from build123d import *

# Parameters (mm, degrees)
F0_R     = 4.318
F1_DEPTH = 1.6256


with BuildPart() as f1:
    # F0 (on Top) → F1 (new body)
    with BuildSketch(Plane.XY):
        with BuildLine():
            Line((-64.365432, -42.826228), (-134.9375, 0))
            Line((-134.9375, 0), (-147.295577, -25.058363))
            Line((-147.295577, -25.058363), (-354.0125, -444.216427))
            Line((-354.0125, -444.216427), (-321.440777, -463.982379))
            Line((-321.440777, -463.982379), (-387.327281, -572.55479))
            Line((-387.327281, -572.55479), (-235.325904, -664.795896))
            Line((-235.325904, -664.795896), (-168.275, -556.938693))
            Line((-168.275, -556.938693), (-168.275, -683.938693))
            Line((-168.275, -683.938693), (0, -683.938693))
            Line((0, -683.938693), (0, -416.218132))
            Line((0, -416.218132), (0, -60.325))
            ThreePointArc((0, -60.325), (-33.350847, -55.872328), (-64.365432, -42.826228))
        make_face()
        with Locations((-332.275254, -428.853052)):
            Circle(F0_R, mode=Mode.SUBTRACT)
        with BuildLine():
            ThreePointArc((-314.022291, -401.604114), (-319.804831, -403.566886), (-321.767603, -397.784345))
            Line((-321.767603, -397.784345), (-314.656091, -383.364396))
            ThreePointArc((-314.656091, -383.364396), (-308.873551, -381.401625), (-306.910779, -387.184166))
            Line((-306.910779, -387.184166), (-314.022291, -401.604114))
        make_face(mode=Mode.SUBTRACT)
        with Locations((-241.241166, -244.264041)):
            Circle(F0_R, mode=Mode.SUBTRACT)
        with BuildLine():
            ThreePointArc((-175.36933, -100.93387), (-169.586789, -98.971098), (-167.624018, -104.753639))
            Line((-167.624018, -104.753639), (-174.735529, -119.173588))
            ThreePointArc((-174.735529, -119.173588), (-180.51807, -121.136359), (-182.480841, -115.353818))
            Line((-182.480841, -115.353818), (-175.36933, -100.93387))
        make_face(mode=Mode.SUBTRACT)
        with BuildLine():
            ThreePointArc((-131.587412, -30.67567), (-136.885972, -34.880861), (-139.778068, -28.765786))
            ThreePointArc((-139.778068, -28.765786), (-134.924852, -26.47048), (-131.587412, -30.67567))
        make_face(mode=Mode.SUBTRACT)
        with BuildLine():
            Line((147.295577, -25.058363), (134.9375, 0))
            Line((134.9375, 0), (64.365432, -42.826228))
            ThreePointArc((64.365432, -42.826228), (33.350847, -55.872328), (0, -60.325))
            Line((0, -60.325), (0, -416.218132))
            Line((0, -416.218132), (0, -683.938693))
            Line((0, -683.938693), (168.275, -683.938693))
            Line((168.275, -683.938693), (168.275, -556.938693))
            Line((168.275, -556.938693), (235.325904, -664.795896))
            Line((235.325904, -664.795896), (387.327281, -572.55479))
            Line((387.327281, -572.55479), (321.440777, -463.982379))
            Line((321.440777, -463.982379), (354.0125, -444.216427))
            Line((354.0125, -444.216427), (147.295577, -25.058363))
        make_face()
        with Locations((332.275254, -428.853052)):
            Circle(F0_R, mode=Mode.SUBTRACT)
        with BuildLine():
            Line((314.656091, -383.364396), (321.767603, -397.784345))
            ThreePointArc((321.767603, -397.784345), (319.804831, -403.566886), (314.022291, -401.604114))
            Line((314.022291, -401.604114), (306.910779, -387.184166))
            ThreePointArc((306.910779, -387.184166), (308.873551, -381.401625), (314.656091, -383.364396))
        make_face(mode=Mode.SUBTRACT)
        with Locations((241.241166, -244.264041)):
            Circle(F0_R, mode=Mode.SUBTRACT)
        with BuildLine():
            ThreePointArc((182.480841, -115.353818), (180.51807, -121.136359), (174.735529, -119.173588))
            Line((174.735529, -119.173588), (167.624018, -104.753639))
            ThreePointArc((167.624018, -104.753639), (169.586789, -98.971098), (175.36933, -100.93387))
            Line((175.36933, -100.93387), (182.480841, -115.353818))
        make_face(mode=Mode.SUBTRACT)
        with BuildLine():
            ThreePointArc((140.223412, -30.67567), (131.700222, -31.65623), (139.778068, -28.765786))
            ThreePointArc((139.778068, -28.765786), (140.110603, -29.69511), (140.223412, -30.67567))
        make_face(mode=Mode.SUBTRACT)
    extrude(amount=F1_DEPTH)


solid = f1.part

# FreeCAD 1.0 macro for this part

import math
import FreeCAD as App
import Part
import Sketcher
Q = App.Units.Quantity

doc = App.newDocument("Part")
body = doc.addObject("PartDesign::Body", "Body")

# Sketch on XY plane
sketch1 = body.newObject("Sketcher::SketchObject", "Sketch")
sketch1.AttachmentSupport = (doc.getObject("XY_Plane"), [""])
sketch1.MapMode = "FlatFace"
sketch1.addGeometry([
    Part.LineSegment(App.Vector(-64.365432, -42.826228, 0), App.Vector(-134.9375, 0, 0)),  # 0
    Part.LineSegment(App.Vector(-134.9375, 0, 0), App.Vector(-147.295577, -25.058363, 0)),  # 1
    Part.LineSegment(App.Vector(-147.295577, -25.058363, 0), App.Vector(-354.0125, -444.216427, 0)),  # 2
    Part.LineSegment(App.Vector(-354.0125, -444.216427, 0), App.Vector(-321.440777, -463.982379, 0)),  # 3
    Part.LineSegment(App.Vector(-321.440777, -463.982379, 0), App.Vector(-387.327281, -572.55479, 0)),  # 4
    Part.LineSegment(App.Vector(-387.327281, -572.55479, 0), App.Vector(-235.325904, -664.795896, 0)),  # 5
    Part.LineSegment(App.Vector(-235.325904, -664.795896, 0), App.Vector(-168.275, -556.938693, 0)),  # 6
    Part.LineSegment(App.Vector(-168.275, -556.938693, 0), App.Vector(-168.275, -683.938693, 0)),  # 7
    Part.LineSegment(App.Vector(-168.275, -683.938693, 0), App.Vector(168.275, -683.938693, 0)),  # 8
    Part.LineSegment(App.Vector(168.275, -683.938693, 0), App.Vector(168.275, -556.938693, 0)),  # 9
    Part.LineSegment(App.Vector(168.275, -556.938693, 0), App.Vector(235.325904, -664.795896, 0)),  # 10
    Part.LineSegment(App.Vector(235.325904, -664.795896, 0), App.Vector(387.327281, -572.55479, 0)),  # 11
    Part.LineSegment(App.Vector(387.327281, -572.55479, 0), App.Vector(321.440777, -463.982379, 0)),  # 12
    Part.LineSegment(App.Vector(321.440777, -463.982379, 0), App.Vector(354.0125, -444.216427, 0)),  # 13
    Part.LineSegment(App.Vector(354.0125, -444.216427, 0), App.Vector(147.295577, -25.058363, 0)),  # 14
    Part.LineSegment(App.Vector(147.295577, -25.058363, 0), App.Vector(134.9375, 0, 0)),  # 15
    Part.LineSegment(App.Vector(134.9375, 0, 0), App.Vector(64.365432, -42.826228, 0)),  # 16
    Part.ArcOfCircle(Part.Circle(App.Vector(-0.000002, 66.801525, 0), App.Vector(0, 0, 1), 127.126525), math.radians(-89.999999), math.radians(-59.581646)),  # 17
    Part.ArcOfCircle(Part.Circle(App.Vector(0.000002, 66.801525, 0), App.Vector(0, 0, 1), 127.126525), math.radians(-120.418354), math.radians(-90.000001)),  # 18
    Part.Circle(App.Vector(-332.275254, -428.853052, 0), App.Vector(0, 0, 1), 4.318),  # 19
    Part.LineSegment(App.Vector(-306.910779, -387.184166, 0), App.Vector(-314.022291, -401.604114, 0)),  # 20
    Part.ArcOfCircle(Part.Circle(App.Vector(-317.894947, -399.69423, 0), App.Vector(0, 0, 1), 4.318), math.radians(153.748784), math.radians(333.74879)),  # 21
    Part.LineSegment(App.Vector(-321.767603, -397.784345, 0), App.Vector(-314.656091, -383.364396, 0)),  # 22
    Part.ArcOfCircle(Part.Circle(App.Vector(-310.783435, -385.274281, 0), App.Vector(0, 0, 1), 4.318), math.radians(-26.251213), math.radians(153.748775)),  # 23
    Part.Circle(App.Vector(-241.241166, -244.264041, 0), App.Vector(0, 0, 1), 4.318),  # 24
    Part.Circle(App.Vector(332.275254, -428.853052, 0), App.Vector(0, 0, 1), 4.318),  # 25
    Part.ArcOfCircle(Part.Circle(App.Vector(310.783435, -385.274281, 0), App.Vector(0, 0, 1), 4.318), math.radians(26.251225), math.radians(206.251213)),  # 26
    Part.LineSegment(App.Vector(314.656091, -383.364396, 0), App.Vector(321.767603, -397.784345, 0)),  # 27
    Part.ArcOfCircle(Part.Circle(App.Vector(317.894947, -399.69423, 0), App.Vector(0, 0, 1), 4.318), math.radians(-153.74879), math.radians(26.251216)),  # 28
    Part.LineSegment(App.Vector(314.022291, -401.604114, 0), App.Vector(306.910779, -387.184166, 0)),  # 29
    Part.Circle(App.Vector(241.241166, -244.264041, 0), App.Vector(0, 0, 1), 4.318),  # 30
    Part.LineSegment(App.Vector(-182.480841, -115.353818, 0), App.Vector(-175.36933, -100.93387, 0)),  # 31
    Part.ArcOfCircle(Part.Circle(App.Vector(-171.496674, -102.843754, 0), App.Vector(0, 0, 1), 4.318), math.radians(-26.251222), math.radians(153.748796)),  # 32
    Part.LineSegment(App.Vector(-167.624018, -104.753639, 0), App.Vector(-174.735529, -119.173588, 0)),  # 33
    Part.ArcOfCircle(Part.Circle(App.Vector(-178.608185, -117.263703, 0), App.Vector(0, 0, 1), 4.318), math.radians(153.748781), math.radians(333.748781)),  # 34
    Part.ArcOfCircle(Part.Circle(App.Vector(-135.905412, -30.67567, 0), App.Vector(0, 0, 1), 4.318), math.radians(0.000004), math.radians(153.74879)),  # 35
    Part.ArcOfCircle(Part.Circle(App.Vector(-135.905412, -30.675671, 0), App.Vector(0, 0, 1), 4.318), math.radians(153.748786), math.radians(360.000008)),  # 36
    Part.ArcOfCircle(Part.Circle(App.Vector(135.90544, -30.675664, 0), App.Vector(0, 0, 1), 4.317972), math.radians(-0.000079), math.radians(26.251303)),  # 37
    Part.ArcOfCircle(Part.Circle(App.Vector(135.905412, -30.675671, 0), App.Vector(0, 0, 1), 4.318), math.radians(26.251216), math.radians(360.000008)),  # 38
    Part.LineSegment(App.Vector(175.36933, -100.93387, 0), App.Vector(182.480841, -115.353818, 0)),  # 39
    Part.ArcOfCircle(Part.Circle(App.Vector(178.608185, -117.263703, 0), App.Vector(0, 0, 1), 4.318), math.radians(-153.748781), math.radians(26.251219)),  # 40
    Part.LineSegment(App.Vector(174.735529, -119.173588, 0), App.Vector(167.624018, -104.753639, 0)),  # 41
    Part.ArcOfCircle(Part.Circle(App.Vector(171.496674, -102.843754, 0), App.Vector(0, 0, 1), 4.318), math.radians(26.251204), math.radians(206.251222)),  # 42
], False)
sketch1.addConstraint([
    Sketcher.Constraint("Coincident", 0, 2, 1, 1),
    Sketcher.Constraint("Coincident", 1, 2, 2, 1),
    Sketcher.Constraint("Coincident", 2, 2, 3, 1),
    Sketcher.Constraint("Coincident", 3, 2, 4, 1),
    Sketcher.Constraint("Coincident", 4, 2, 5, 1),
    Sketcher.Constraint("Coincident", 5, 2, 6, 1),
    Sketcher.Constraint("Coincident", 6, 2, 7, 1),
    Sketcher.Constraint("Coincident", 7, 2, 8, 1),
    Sketcher.Constraint("Coincident", 8, 2, 9, 1),
    Sketcher.Constraint("Coincident", 9, 2, 10, 1),
    Sketcher.Constraint("Coincident", 10, 2, 11, 1),
    Sketcher.Constraint("Coincident", 11, 2, 12, 1),
    Sketcher.Constraint("Coincident", 12, 2, 13, 1),
    Sketcher.Constraint("Coincident", 13, 2, 14, 1),
    Sketcher.Constraint("Coincident", 14, 2, 15, 1),
    Sketcher.Constraint("Coincident", 15, 2, 16, 1),
    Sketcher.Constraint("Coincident", 16, 2, 17, 2),
    Sketcher.Constraint("Coincident", 17, 1, 18, 2),
    Sketcher.Constraint("Coincident", 18, 1, 0, 1),
    Sketcher.Constraint("Coincident", 20, 2, 21, 2),
    Sketcher.Constraint("Coincident", 21, 1, 22, 1),
    Sketcher.Constraint("Coincident", 22, 2, 23, 2),
    Sketcher.Constraint("Coincident", 23, 1, 20, 1),
    Sketcher.Constraint("Coincident", 26, 1, 27, 1),
    Sketcher.Constraint("Coincident", 27, 2, 28, 2),
    Sketcher.Constraint("Coincident", 28, 1, 29, 1),
    Sketcher.Constraint("Coincident", 29, 2, 26, 2),
    Sketcher.Constraint("Coincident", 31, 2, 32, 2),
    Sketcher.Constraint("Coincident", 32, 1, 33, 1),
    Sketcher.Constraint("Coincident", 33, 2, 34, 2),
    Sketcher.Constraint("Coincident", 34, 1, 31, 1),
    Sketcher.Constraint("Coincident", 35, 1, 36, 2),
    Sketcher.Constraint("Coincident", 36, 1, 35, 2),
    Sketcher.Constraint("Coincident", 37, 1, 38, 2),
    Sketcher.Constraint("Coincident", 38, 1, 37, 2),
    Sketcher.Constraint("Coincident", 39, 2, 40, 2),
    Sketcher.Constraint("Coincident", 40, 1, 41, 1),
    Sketcher.Constraint("Coincident", 41, 2, 42, 2),
    Sketcher.Constraint("Coincident", 42, 1, 39, 1),
    Sketcher.Constraint("Vertical", 7),
    Sketcher.Constraint("Horizontal", 8),
    Sketcher.Constraint("Vertical", 9),
    Sketcher.Constraint("Coincident", 18, 3, 17, 3),
    Sketcher.Constraint("PointOnObject", 0, 2, -1),
    Sketcher.Constraint("PointOnObject", 15, 2, -1),
    Sketcher.Constraint("PointOnObject", 17, 1, -2),
    Sketcher.Constraint("Diameter", 19, Q("0.34 in")),
    Sketcher.Constraint("Diameter", 24, Q("0.34 in")),
    Sketcher.Constraint("Diameter", 25, Q("0.34 in")),
    Sketcher.Constraint("Diameter", 30, Q("0.34 in")),
    Sketcher.Constraint("DistanceY", 7, 2, 7, 1, Q("5 in")),
    Sketcher.Constraint("DistanceY", 9, 1, 9, 2, Q("5 in")),
    Sketcher.Constraint("Radius", 21, Q("0.17 in")),
    Sketcher.Constraint("Radius", 23, Q("0.17 in")),
    Sketcher.Constraint("Radius", 26, Q("0.17 in")),
    Sketcher.Constraint("Radius", 28, Q("0.17 in")),
    Sketcher.Constraint("Radius", 32, Q("0.17 in")),
    Sketcher.Constraint("Radius", 34, Q("0.17 in")),
    Sketcher.Constraint("Radius", 35, Q("0.17 in")),
    Sketcher.Constraint("Radius", 36, Q("0.17 in")),
    Sketcher.Constraint("Radius", 38, Q("0.17 in")),
    Sketcher.Constraint("Radius", 40, Q("0.17 in")),
    Sketcher.Constraint("Radius", 42, Q("0.17 in")),
    Sketcher.Constraint("Distance", 4, Q("5 in")),
    Sketcher.Constraint("Distance", 5, Q("7 in")),
    Sketcher.Constraint("Distance", 6, Q("5 in")),
    Sketcher.Constraint("Distance", 10, Q("5 in")),
    Sketcher.Constraint("Distance", 11, Q("7 in")),
    Sketcher.Constraint("Distance", 12, Q("5 in")),
    Sketcher.Constraint("Distance", 1, Q("1.1 in")),
    Sketcher.Constraint("Distance", 2, Q("18.4 in")),
    Sketcher.Constraint("Distance", 3, Q("1.5 in")),
    Sketcher.Constraint("Distance", 13, Q("1.5 in")),
    Sketcher.Constraint("Distance", 14, Q("18.4 in")),
    Sketcher.Constraint("Distance", 15, Q("1.1 in")),
    Sketcher.Constraint("DistanceX", 8, 1, 8, 2, Q("13.25 in")),
    Sketcher.Constraint("Distance", 0, Q("3.25 in")),
    Sketcher.Constraint("Distance", 16, Q("3.25 in")),
    Sketcher.Constraint("Distance", 20, Q("0.633 in")),
    Sketcher.Constraint("Distance", 22, Q("0.633 in")),
    Sketcher.Constraint("Distance", 27, Q("0.633 in")),
    Sketcher.Constraint("Distance", 29, Q("0.633 in")),
    Sketcher.Constraint("Distance", 31, Q("0.633 in")),
    Sketcher.Constraint("Distance", 33, Q("0.633 in")),
    Sketcher.Constraint("Distance", 39, Q("0.633 in")),
    Sketcher.Constraint("Distance", 41, Q("0.633 in")),
    Sketcher.Constraint("DistanceX", 0, 2, -1, 1, Q("5.3125 in")),
    Sketcher.Constraint("DistanceX", 2, 2, -1, 1, Q("13.9375 in")),
    Sketcher.Constraint("DistanceX", 6, 2, -1, 1, Q("6.625 in")),
    Sketcher.Constraint("DistanceX", -1, 1, 13, 2, Q("13.9375 in")),
    Sketcher.Constraint("DistanceX", -1, 1, 15, 2, Q("5.3125 in")),
    Sketcher.Constraint("DistanceY", 17, 1, -1, 1, Q("2.375 in")),
    Sketcher.Constraint("Radius", 37, 4.317972),
    Sketcher.Constraint("DistanceX", 0, 2, 17, 3, Q("5.3124999 in")),
    Sketcher.Constraint("Radius", 17, 127.126525),
    Sketcher.Constraint("DistanceX", 21, 3, 25, 3, 650.170201),
    Sketcher.Constraint("DistanceX", 24, 3, 26, 3, 552.024601),
    Sketcher.Constraint("DistanceY", 37, 3, 14, 2, 5.617301),
    Sketcher.Constraint("DistanceX", 22, 2, 20, 2, 0.6338),
    Sketcher.Constraint("DistanceX", 28, 1, 26, 1, 0.6338),
    Sketcher.Constraint("DistanceY", 31, 2, 36, 3, 70.258199),
    Sketcher.Constraint("DistanceX", 31, 2, 33, 2, 0.633801),
    Sketcher.Constraint("DistanceX", 37, 3, 39, 2, 46.575401),
    Sketcher.Constraint("DistanceX", 40, 1, 42, 1, 0.633801),
    Sketcher.Constraint("DistanceY", 19, 3, -1, 1, 428.853052),
    Sketcher.Constraint("DistanceY", 21, 3, -1, 1, 399.69423),
    Sketcher.Constraint("DistanceY", 23, 3, -1, 1, 385.274281),
    Sketcher.Constraint("DistanceY", 24, 3, -1, 1, 244.264041),
    Sketcher.Constraint("DistanceY", 25, 3, -1, 1, 428.853052),
    Sketcher.Constraint("DistanceY", 26, 3, -1, 1, 385.274281),
    Sketcher.Constraint("DistanceY", 28, 3, -1, 1, 399.69423),
    Sketcher.Constraint("DistanceY", 30, 3, -1, 1, 244.264041),
    Sketcher.Constraint("DistanceX", 35, 3, -1, 1, 135.905412),
    Sketcher.Constraint("DistanceY", 35, 3, -1, 1, 30.67567),
    Sketcher.Constraint("DistanceX", -1, 1, 37, 3, 135.90544),
    Sketcher.Constraint("DistanceY", 38, 3, -1, 1, 30.675671),
    Sketcher.Constraint("DistanceY", 3, 2, -1, 1, 463.982379),
    Sketcher.Constraint("DistanceX", 4, 2, -1, 1, 387.327281),
    Sketcher.Constraint("DistanceX", -1, 1, 11, 2, 387.327281),
    Sketcher.Constraint("DistanceY", 11, 2, -1, 1, 572.55479),
    Sketcher.Constraint("DistanceX", 20, 2, -1, 1, 314.022291),
    Sketcher.Constraint("DistanceX", 23, 1, -1, 1, 306.910779),
    Sketcher.Constraint("DistanceX", -1, 1, 26, 1, 314.656091),
    Sketcher.Constraint("DistanceX", -1, 1, 29, 2, 306.910779),
    Sketcher.Constraint("DistanceX", 31, 2, -1, 1, 175.36933),
    Sketcher.Constraint("DistanceX", 32, 1, -1, 1, 167.624018),
    Sketcher.Constraint("DistanceY", 35, 1, -1, 1, 30.67567),
    Sketcher.Constraint("DistanceY", 37, 1, -1, 1, 30.67567),
    Sketcher.Constraint("DistanceY", 39, 2, -1, 1, 115.353818),
    Sketcher.Constraint("DistanceX", -1, 1, 40, 1, 174.735529),
    Sketcher.Constraint("DistanceX", 19, 3, 17, 3, 332.275252),
    Sketcher.Constraint("DistanceX", 21, 3, 18, 3, 317.894949),
    Sketcher.Constraint("DistanceX", 23, 3, 24, 3, 69.542269),
    Sketcher.Constraint("DistanceX", 30, 3, 26, 3, 69.542269),
    Sketcher.Constraint("DistanceX", 32, 3, 17, 3, 171.496671),
    Sketcher.Constraint("DistanceX", 34, 3, 32, 3, 7.111511),
    Sketcher.Constraint("DistanceY", 40, 3, 37, 3, 86.588039),
    Sketcher.Constraint("DistanceX", 42, 3, 40, 3, 7.111511),
    Sketcher.Constraint("DistanceY", 32, 3, 1, 2, 77.785391),
    Sketcher.Constraint("DistanceY", 5, 2, 2, 2, 220.579469),
    Sketcher.Constraint("DistanceX", 1, 2, 36, 1, 7.517509),
    Sketcher.Constraint("DistanceY", 37, 3, 38, 1, 1.909878),
])
pad1 = body.newObject("PartDesign::Pad", "Pad")
pad1.Profile = sketch1
pad1.Length = Q("0.064 in")

doc.recompute()
